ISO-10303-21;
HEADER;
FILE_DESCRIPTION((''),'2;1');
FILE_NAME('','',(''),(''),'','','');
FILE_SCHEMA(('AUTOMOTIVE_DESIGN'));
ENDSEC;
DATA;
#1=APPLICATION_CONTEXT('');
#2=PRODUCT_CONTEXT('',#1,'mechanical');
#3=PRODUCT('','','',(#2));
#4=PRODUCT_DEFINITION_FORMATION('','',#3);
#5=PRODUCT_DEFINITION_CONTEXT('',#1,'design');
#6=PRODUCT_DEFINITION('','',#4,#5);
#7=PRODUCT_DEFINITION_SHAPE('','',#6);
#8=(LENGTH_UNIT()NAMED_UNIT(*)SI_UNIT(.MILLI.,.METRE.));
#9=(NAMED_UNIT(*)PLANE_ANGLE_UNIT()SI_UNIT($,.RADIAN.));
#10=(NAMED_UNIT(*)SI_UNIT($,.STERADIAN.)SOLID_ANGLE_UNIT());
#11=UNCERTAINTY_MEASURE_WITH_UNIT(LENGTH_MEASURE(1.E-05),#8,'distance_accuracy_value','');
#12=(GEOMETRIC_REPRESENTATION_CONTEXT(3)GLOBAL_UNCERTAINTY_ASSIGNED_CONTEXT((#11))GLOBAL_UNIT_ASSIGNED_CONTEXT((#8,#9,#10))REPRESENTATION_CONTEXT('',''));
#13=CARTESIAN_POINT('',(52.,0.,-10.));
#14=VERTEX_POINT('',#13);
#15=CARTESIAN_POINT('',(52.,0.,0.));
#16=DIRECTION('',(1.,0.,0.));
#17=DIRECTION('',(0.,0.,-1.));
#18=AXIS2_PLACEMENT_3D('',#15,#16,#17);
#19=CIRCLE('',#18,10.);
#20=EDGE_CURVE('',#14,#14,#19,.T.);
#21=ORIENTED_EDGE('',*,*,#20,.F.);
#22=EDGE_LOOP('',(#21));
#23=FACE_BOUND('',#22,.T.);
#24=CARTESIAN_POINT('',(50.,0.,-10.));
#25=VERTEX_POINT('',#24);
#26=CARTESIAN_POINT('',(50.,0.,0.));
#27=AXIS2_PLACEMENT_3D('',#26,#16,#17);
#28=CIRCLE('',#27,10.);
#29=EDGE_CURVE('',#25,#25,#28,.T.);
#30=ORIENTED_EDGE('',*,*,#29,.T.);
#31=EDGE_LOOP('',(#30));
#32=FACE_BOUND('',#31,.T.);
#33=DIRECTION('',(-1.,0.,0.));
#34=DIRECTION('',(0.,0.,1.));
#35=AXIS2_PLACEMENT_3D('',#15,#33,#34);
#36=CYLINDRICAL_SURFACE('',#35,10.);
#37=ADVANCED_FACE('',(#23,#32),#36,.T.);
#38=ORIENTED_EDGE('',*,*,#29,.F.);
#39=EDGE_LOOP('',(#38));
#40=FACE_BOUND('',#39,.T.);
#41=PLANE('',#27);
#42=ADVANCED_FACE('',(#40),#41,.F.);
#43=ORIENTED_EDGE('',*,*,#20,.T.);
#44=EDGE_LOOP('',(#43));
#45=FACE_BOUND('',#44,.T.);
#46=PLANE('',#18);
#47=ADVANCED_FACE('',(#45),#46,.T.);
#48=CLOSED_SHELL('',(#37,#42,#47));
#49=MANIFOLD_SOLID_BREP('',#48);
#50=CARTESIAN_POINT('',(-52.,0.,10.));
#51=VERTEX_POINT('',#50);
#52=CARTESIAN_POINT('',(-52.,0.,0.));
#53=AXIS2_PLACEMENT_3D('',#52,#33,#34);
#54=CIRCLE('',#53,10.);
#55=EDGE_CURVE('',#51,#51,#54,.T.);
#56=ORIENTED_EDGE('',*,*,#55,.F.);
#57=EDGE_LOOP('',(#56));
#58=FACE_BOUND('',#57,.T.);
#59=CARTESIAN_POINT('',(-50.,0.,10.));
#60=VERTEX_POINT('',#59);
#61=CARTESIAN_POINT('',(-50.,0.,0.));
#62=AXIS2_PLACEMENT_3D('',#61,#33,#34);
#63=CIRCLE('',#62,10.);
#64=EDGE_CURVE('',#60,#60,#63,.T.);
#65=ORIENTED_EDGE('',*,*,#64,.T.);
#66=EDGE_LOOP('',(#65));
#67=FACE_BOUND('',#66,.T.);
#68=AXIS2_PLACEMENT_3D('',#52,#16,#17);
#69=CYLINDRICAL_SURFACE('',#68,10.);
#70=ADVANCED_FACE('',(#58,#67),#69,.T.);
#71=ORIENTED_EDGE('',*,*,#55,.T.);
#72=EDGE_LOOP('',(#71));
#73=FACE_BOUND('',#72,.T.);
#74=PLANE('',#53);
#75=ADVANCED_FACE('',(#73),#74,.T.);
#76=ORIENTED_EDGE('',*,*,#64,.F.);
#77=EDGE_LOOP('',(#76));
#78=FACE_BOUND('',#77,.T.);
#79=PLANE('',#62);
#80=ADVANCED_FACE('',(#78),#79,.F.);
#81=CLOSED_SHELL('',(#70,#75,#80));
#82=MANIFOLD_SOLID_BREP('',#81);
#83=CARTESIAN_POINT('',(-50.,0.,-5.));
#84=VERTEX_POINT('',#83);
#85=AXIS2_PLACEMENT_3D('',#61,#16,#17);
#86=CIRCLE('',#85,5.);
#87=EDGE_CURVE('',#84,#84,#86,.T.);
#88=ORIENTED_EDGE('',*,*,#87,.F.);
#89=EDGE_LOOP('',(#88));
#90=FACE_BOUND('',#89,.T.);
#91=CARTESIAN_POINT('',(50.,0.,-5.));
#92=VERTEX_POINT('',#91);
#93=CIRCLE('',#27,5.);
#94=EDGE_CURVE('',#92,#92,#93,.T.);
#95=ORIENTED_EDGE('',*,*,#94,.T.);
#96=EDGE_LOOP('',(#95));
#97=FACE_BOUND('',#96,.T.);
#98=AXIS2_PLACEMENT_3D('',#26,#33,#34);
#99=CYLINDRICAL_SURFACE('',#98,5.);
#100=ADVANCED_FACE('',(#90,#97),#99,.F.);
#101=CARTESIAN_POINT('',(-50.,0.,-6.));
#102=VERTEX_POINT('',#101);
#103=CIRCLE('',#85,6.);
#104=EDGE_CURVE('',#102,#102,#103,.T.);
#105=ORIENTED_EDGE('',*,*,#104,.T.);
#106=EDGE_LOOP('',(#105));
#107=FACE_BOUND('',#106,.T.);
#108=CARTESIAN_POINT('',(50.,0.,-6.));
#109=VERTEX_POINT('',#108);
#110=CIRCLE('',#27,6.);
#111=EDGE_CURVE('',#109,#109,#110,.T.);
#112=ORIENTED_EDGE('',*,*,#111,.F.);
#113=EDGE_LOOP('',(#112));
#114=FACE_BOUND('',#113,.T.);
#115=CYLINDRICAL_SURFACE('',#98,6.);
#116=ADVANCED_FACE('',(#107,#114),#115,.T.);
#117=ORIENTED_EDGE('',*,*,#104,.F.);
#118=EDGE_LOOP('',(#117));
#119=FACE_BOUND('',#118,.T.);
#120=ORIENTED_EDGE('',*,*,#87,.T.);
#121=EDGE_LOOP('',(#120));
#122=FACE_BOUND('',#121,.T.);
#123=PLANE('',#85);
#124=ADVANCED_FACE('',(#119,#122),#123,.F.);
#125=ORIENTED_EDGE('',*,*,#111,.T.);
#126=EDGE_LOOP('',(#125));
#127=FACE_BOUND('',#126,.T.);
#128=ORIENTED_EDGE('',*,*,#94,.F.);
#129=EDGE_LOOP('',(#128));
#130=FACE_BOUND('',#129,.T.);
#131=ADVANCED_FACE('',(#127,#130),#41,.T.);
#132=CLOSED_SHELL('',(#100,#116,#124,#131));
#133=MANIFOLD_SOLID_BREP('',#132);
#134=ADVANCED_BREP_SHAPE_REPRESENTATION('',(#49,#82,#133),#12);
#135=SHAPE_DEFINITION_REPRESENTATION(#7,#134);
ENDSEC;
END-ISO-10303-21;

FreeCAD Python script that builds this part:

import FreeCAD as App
import Part
import Sketcher

doc = App.newDocument("Part")
body = doc.addObject("PartDesign::Body", "Body")

sketch1 = body.newObject("Sketcher::SketchObject", "Sketch")
sketch1.AttachmentSupport = (doc.getObject("YZ_Plane"), [""])
sketch1.MapMode = "FlatFace"
sketch1.addGeometry(Part.Circle(App.Vector(0, 0, 0), App.Vector(0, 0, 1), 6), False)
sketch1.addGeometry(Part.Circle(App.Vector(0, 0, 0), App.Vector(0, 0, 1), 5), False)
sketch1.addConstraint(Sketcher.Constraint("Coincident", 0, 3, -1, 1))
sketch1.addConstraint(Sketcher.Constraint("Coincident", 1, 3, -1, 1))
sketch1.addConstraint(Sketcher.Constraint("Diameter", 0, 12.0))
sketch1.addConstraint(Sketcher.Constraint("Diameter", 1, 10.0))
pad1 = body.newObject("PartDesign::Pad", "Pad")
pad1.Profile = sketch1
pad1.Length = 100
pad1.Midplane = True
body2 = doc.addObject("PartDesign::Body", "Body001")

sketch2 = body2.newObject("Sketcher::SketchObject", "Sketch001")
sketch2.AttachmentSupport = (doc.getObject("YZ_Plane001"), [""])
sketch2.MapMode = "FlatFace"
sketch2.AttachmentOffset = App.Placement(App.Vector(0, 0, -50), App.Rotation())
sketch2.addGeometry(Part.Circle(App.Vector(0, 0, 0), App.Vector(0, 0, 1), 10), False)
sketch2.addConstraint(Sketcher.Constraint("Coincident", 0, 3, -1, 1))
sketch2.addConstraint(Sketcher.Constraint("Diameter", 0, 20.0))
pad2 = body2.newObject("PartDesign::Pad", "Pad001")
pad2.Profile = sketch2
pad2.Length = 2
pad2.Reversed = True
body3 = doc.addObject("PartDesign::Body", "Body002")

sketch3 = body3.newObject("Sketcher::SketchObject", "Sketch002")
sketch3.AttachmentSupport = (doc.getObject("YZ_Plane002"), [""])
sketch3.MapMode = "FlatFace"
sketch3.AttachmentOffset = App.Placement(App.Vector(0, 0, 50), App.Rotation())
sketch3.addGeometry(Part.Circle(App.Vector(0, 0, 0), App.Vector(0, 0, 1), 10), False)
sketch3.addConstraint(Sketcher.Constraint("Coincident", 0, 3, -1, 1))
sketch3.addConstraint(Sketcher.Constraint("Diameter", 0, 20.0))
pad3 = body3.newObject("PartDesign::Pad", "Pad002")
pad3.Profile = sketch3
pad3.Length = 2

doc.recompute()
